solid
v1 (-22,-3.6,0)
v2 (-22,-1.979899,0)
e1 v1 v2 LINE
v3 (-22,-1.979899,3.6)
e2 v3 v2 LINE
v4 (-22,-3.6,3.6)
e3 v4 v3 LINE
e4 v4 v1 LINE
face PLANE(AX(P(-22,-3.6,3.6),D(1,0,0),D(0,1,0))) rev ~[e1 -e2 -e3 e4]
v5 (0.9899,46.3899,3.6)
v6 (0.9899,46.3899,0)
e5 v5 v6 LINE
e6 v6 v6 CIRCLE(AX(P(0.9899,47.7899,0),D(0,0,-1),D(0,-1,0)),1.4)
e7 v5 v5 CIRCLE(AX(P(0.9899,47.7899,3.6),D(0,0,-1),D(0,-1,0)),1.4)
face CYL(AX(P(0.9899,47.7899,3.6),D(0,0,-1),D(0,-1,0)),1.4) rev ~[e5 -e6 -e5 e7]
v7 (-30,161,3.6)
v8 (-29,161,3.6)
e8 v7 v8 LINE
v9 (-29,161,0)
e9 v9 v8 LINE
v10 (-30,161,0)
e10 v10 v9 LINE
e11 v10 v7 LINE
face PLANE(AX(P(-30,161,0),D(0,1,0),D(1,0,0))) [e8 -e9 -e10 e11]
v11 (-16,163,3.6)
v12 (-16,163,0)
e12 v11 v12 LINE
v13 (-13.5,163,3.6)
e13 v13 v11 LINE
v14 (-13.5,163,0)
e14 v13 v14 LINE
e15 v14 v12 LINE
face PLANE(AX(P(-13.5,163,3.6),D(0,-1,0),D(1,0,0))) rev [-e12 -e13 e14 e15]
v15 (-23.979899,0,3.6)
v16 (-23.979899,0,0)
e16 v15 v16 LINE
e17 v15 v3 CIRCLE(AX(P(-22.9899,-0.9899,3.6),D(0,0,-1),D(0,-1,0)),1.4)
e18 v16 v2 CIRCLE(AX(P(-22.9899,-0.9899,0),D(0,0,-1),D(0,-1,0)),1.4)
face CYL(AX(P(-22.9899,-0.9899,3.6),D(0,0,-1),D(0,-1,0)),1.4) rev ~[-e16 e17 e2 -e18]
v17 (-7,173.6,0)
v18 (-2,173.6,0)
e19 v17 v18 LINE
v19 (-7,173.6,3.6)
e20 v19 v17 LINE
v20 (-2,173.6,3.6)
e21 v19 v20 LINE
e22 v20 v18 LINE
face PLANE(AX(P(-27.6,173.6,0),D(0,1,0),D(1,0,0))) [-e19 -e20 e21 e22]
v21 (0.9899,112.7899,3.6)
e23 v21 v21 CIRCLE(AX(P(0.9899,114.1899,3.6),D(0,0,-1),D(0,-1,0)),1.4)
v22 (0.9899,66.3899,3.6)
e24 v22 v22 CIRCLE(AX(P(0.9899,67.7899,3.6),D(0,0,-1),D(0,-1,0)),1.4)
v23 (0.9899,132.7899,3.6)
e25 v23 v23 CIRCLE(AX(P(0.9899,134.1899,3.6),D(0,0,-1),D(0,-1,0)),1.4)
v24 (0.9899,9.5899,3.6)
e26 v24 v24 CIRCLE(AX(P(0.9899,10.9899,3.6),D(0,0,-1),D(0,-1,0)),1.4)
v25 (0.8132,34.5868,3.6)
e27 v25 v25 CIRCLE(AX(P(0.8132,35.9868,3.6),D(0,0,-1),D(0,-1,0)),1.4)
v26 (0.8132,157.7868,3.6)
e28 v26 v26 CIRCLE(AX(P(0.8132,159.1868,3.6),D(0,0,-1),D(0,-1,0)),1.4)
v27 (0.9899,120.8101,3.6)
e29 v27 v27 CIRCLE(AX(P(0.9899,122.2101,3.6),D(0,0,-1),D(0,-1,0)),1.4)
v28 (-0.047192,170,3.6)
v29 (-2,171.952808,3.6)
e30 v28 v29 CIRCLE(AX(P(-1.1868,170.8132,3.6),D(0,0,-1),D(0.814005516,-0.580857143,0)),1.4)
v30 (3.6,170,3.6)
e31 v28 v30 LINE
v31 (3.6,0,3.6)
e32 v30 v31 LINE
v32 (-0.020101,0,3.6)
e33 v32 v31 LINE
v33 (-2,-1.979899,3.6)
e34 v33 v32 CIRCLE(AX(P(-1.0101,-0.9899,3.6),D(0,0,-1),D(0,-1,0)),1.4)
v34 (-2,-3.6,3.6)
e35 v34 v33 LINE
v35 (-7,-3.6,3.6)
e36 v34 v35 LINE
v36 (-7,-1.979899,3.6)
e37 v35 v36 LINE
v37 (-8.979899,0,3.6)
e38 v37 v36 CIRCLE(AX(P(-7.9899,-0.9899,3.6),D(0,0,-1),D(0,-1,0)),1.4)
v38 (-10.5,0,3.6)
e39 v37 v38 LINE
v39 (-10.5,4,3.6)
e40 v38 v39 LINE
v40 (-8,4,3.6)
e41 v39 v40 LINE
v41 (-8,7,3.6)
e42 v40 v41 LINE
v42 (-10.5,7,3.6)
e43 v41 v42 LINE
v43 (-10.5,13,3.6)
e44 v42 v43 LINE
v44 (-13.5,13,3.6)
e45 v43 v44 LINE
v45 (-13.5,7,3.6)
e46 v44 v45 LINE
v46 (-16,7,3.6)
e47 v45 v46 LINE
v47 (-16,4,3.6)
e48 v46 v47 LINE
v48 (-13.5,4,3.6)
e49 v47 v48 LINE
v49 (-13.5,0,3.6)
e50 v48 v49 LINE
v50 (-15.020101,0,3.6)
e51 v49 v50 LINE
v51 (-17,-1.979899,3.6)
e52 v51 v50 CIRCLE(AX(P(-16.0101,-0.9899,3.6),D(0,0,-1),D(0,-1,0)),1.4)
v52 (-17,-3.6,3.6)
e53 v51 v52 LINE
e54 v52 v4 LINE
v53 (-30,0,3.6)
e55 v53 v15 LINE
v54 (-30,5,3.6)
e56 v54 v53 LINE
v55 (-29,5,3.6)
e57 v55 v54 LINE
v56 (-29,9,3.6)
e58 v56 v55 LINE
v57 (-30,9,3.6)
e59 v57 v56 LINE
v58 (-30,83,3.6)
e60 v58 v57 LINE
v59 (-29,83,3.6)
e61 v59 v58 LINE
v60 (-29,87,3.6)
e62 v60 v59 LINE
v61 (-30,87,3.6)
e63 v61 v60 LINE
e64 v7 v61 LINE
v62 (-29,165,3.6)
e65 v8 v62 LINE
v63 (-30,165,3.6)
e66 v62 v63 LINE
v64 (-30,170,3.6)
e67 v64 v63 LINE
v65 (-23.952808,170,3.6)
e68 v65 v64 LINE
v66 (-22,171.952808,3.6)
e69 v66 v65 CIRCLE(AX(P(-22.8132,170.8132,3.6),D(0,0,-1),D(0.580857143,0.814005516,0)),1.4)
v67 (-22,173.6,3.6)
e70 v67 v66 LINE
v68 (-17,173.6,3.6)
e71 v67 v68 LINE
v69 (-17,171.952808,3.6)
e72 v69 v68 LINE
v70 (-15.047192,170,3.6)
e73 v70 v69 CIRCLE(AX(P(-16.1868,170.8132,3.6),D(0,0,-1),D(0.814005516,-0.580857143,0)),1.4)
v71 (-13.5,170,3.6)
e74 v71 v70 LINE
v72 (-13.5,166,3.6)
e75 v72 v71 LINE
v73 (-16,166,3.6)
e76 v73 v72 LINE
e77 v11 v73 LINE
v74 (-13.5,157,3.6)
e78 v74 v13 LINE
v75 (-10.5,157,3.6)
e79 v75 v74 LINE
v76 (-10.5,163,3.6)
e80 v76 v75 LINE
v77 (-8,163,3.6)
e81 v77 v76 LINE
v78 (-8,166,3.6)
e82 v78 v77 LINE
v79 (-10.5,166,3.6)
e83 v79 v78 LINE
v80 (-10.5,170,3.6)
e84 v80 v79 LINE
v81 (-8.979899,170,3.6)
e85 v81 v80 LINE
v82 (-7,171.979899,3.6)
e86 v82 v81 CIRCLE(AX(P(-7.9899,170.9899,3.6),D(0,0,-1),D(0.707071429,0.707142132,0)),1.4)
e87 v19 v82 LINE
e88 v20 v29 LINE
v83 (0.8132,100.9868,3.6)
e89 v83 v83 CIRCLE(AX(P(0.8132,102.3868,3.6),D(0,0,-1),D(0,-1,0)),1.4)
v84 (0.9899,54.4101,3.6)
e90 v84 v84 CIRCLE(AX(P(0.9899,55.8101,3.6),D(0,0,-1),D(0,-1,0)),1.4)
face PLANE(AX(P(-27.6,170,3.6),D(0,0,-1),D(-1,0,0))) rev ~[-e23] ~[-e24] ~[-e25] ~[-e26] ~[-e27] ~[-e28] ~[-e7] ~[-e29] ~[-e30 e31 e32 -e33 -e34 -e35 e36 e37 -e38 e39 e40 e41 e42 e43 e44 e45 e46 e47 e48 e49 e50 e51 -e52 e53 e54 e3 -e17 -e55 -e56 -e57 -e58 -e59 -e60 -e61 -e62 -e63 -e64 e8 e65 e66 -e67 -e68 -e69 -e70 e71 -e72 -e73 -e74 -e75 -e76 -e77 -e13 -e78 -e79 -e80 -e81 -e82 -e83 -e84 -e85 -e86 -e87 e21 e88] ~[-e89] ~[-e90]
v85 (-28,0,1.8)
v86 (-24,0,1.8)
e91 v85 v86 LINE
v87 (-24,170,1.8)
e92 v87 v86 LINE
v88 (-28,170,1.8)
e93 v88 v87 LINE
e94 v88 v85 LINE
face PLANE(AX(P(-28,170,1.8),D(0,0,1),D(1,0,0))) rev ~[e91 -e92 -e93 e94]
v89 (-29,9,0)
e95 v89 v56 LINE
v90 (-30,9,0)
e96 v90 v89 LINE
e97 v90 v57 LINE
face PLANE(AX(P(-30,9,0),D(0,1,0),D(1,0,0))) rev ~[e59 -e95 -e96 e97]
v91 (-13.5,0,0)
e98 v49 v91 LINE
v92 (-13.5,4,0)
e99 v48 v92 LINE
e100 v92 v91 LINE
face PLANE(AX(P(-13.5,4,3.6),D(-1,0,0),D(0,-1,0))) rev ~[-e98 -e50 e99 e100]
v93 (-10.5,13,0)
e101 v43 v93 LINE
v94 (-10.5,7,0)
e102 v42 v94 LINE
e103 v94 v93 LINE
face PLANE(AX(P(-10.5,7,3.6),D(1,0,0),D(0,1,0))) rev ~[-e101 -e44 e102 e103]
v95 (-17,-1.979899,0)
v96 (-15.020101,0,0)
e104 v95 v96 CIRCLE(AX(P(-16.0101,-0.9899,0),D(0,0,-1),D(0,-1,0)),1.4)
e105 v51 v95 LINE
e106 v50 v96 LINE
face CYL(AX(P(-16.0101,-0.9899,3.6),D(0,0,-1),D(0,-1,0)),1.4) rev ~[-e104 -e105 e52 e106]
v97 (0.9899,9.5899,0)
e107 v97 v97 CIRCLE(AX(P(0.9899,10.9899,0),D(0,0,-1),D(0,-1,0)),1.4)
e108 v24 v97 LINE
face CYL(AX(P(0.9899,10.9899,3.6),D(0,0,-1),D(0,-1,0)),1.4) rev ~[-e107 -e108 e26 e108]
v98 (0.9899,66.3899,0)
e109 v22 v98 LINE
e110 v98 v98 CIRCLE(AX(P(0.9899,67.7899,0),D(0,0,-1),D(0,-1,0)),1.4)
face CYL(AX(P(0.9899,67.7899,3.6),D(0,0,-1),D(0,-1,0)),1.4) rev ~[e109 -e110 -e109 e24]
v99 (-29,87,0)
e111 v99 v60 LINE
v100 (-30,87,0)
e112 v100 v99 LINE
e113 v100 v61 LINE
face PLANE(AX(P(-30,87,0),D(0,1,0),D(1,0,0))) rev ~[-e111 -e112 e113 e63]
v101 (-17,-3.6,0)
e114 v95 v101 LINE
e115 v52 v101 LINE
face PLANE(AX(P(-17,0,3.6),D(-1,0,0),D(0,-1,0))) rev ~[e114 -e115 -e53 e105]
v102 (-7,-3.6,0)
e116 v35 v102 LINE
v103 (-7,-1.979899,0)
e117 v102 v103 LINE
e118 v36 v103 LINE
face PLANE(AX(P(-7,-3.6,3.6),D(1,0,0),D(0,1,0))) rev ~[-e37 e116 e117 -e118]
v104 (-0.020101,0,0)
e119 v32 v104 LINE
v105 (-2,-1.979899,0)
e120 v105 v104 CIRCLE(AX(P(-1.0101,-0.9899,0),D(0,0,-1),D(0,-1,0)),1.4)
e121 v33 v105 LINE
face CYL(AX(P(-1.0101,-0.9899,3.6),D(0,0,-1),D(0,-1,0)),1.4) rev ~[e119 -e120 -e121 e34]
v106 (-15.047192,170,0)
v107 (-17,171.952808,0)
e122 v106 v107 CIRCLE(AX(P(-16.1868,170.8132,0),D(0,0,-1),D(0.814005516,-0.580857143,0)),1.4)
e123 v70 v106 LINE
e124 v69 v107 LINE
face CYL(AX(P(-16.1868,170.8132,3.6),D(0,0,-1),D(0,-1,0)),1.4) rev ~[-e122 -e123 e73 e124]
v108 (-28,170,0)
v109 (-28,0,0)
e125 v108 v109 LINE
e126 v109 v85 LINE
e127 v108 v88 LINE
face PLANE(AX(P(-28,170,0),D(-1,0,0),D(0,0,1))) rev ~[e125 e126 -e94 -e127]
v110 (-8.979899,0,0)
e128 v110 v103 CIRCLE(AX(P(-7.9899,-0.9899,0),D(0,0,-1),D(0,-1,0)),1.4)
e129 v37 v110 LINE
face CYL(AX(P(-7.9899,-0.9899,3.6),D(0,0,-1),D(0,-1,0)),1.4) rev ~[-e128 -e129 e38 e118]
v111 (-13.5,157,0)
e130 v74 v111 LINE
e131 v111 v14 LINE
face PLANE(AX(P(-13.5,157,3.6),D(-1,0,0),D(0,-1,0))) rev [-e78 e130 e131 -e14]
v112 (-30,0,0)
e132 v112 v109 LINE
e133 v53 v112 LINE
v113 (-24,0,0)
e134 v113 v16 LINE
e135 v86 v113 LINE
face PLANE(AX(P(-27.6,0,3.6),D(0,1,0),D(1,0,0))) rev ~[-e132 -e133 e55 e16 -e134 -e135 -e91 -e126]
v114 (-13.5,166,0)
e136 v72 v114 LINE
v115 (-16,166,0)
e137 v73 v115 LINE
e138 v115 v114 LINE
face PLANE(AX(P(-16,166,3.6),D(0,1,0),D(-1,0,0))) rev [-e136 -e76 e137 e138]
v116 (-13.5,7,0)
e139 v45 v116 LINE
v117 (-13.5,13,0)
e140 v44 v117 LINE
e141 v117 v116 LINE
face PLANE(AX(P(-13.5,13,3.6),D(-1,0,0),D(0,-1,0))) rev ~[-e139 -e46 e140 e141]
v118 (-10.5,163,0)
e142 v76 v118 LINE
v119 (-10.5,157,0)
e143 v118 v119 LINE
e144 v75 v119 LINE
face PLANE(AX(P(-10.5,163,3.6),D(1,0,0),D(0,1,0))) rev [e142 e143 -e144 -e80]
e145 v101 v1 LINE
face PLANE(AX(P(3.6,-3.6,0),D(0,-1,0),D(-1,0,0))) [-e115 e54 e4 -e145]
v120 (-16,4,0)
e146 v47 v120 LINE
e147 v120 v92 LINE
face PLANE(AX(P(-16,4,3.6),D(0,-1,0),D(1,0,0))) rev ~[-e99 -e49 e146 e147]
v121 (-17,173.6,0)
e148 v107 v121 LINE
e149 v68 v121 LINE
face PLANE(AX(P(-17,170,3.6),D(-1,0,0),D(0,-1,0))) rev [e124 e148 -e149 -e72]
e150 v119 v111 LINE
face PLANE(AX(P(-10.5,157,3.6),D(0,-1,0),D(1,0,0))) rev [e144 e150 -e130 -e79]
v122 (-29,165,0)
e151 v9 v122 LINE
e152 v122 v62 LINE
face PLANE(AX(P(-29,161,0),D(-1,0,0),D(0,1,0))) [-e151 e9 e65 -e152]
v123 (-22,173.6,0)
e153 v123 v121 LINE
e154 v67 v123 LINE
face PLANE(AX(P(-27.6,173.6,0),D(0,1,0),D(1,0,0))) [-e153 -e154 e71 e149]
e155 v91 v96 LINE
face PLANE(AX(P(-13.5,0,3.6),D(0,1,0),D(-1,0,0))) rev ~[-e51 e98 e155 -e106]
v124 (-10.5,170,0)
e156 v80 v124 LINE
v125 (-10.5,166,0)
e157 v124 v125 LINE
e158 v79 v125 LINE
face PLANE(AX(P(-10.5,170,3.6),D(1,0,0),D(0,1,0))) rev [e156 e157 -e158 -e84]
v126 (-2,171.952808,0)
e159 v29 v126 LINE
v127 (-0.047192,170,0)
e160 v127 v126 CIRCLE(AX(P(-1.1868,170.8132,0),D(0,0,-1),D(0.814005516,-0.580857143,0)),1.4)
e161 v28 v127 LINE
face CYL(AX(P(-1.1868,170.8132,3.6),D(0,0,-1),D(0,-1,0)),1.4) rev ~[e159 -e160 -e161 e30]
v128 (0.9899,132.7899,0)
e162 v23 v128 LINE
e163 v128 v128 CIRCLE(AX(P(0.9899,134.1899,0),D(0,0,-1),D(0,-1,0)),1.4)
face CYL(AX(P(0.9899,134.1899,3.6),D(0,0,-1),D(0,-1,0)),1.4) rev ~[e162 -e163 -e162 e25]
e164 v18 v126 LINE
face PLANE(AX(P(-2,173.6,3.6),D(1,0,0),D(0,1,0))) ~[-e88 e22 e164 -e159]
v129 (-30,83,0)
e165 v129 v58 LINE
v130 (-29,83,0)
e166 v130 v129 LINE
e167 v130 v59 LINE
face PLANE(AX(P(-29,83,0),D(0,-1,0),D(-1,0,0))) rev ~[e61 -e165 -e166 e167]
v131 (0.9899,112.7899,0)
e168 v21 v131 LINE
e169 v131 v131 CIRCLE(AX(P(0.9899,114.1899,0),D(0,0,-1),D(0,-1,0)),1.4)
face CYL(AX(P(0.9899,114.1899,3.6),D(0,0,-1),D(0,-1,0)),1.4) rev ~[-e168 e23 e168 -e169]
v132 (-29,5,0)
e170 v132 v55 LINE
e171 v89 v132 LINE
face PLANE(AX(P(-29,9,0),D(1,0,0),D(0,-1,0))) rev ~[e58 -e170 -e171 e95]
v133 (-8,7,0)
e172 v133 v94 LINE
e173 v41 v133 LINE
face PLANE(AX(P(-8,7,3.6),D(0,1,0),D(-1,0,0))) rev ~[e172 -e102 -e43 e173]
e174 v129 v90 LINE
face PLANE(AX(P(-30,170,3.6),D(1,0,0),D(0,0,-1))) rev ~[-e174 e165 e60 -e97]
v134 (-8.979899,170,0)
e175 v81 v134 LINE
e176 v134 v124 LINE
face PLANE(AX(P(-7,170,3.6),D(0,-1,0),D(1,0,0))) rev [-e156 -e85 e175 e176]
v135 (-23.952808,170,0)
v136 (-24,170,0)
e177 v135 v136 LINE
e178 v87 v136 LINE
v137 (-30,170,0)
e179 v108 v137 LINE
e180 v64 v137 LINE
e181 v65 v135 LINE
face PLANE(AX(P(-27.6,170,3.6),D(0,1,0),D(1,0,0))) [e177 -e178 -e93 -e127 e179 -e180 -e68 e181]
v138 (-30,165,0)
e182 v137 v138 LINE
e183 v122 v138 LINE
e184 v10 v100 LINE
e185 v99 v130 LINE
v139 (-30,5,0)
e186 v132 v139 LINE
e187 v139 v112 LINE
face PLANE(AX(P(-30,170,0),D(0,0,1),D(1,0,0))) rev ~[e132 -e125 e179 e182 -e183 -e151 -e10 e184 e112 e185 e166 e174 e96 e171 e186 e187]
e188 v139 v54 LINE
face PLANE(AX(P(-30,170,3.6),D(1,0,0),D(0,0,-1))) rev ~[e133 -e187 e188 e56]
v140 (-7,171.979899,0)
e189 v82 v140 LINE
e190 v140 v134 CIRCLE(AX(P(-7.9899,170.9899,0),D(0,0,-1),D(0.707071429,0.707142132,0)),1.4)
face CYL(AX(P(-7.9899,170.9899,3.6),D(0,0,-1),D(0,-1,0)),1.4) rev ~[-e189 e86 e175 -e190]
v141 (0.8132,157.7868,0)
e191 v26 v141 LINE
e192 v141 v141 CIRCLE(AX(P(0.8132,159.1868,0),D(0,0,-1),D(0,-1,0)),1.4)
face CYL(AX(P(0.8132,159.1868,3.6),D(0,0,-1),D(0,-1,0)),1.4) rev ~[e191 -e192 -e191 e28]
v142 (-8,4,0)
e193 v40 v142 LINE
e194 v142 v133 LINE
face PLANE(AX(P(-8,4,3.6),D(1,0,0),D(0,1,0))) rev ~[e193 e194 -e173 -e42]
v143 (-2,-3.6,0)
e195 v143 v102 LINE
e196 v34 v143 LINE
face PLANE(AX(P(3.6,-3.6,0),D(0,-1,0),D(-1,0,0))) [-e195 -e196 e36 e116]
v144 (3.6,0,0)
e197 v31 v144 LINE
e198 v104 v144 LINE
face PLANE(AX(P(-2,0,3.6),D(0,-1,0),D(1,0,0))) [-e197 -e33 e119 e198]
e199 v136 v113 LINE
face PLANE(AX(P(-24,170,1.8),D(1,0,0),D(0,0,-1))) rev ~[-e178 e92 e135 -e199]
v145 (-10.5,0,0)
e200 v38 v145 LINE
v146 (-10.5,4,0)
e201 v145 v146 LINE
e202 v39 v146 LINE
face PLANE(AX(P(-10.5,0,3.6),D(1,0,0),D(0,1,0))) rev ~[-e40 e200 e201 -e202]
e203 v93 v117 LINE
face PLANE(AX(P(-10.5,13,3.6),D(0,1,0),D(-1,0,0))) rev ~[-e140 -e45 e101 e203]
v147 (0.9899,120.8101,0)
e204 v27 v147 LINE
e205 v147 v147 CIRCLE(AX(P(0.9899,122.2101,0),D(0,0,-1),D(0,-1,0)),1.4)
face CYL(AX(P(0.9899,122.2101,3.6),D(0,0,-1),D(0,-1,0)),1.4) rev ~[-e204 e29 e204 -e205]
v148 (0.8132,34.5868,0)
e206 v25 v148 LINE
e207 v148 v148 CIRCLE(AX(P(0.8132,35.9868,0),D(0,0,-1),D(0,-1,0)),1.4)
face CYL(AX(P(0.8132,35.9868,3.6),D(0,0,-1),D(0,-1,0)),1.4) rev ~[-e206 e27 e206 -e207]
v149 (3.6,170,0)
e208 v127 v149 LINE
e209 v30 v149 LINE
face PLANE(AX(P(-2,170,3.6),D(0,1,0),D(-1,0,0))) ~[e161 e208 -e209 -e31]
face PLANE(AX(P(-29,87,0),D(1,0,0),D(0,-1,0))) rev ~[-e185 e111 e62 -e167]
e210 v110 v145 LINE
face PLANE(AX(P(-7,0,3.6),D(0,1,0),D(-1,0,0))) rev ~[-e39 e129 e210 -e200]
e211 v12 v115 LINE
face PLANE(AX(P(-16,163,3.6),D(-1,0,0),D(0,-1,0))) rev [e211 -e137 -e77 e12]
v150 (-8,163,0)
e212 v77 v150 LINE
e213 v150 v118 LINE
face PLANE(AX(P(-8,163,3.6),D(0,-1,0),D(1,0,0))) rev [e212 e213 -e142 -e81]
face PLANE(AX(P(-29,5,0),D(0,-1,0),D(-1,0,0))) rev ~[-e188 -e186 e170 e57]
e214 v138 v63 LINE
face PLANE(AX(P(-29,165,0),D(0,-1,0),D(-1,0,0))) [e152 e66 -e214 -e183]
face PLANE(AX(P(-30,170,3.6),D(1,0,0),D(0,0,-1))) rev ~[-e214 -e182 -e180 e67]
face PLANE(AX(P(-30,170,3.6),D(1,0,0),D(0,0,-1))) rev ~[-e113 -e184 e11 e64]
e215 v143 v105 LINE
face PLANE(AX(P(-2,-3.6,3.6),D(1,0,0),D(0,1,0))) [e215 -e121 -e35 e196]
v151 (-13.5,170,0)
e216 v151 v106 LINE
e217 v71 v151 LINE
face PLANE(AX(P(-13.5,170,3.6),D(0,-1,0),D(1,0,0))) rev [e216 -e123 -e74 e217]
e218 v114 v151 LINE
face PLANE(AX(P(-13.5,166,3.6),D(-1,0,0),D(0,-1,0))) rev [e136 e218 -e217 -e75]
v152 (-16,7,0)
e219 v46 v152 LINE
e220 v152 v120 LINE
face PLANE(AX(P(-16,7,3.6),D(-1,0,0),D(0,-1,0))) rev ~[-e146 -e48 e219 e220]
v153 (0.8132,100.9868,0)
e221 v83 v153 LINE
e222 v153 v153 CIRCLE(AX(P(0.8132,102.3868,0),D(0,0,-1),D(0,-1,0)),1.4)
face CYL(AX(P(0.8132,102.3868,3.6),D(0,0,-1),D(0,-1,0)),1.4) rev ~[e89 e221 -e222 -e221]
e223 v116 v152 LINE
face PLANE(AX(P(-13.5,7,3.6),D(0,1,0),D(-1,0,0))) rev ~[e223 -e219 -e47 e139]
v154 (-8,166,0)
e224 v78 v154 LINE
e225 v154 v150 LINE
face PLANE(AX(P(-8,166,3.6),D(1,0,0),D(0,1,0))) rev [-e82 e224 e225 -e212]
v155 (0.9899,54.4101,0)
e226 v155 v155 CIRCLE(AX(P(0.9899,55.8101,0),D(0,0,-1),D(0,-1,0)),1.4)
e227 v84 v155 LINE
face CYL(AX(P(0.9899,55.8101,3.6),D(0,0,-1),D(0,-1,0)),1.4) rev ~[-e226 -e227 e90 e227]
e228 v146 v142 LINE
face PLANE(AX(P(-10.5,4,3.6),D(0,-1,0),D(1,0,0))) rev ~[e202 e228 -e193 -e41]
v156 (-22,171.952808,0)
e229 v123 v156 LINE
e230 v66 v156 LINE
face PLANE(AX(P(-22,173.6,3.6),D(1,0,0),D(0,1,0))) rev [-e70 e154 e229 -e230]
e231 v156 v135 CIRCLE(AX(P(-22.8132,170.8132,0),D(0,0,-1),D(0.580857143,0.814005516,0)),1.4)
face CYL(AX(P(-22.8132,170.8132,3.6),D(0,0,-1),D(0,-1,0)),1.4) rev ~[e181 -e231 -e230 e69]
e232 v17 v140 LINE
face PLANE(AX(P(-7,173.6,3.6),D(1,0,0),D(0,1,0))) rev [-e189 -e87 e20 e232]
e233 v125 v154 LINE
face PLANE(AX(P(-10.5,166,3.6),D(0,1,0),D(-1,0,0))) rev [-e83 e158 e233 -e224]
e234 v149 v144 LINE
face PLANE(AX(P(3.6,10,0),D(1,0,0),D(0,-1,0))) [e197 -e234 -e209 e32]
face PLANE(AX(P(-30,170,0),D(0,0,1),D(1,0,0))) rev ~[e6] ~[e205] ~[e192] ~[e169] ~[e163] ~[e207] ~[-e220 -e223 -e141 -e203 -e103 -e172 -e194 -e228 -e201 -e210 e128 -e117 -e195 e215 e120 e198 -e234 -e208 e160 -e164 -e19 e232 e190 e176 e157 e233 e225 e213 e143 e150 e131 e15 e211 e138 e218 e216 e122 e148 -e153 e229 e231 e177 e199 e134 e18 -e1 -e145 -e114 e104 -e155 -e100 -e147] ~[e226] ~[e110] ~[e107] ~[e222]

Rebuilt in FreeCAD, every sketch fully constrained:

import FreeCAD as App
import Part
import Sketcher

V = App.Vector

doc = App.newDocument("Part")
body = doc.addObject("PartDesign::Body", "Body")

# Sketch on XY plane
sketch1 = body.newObject("Sketcher::SketchObject", "Sketch")
sketch1.AttachmentSupport = (doc.getObject("XY_Plane"), [""])
sketch1.MapMode = "FlatFace"
sketch1.addGeometry(Part.LineSegment(V(4, 174, 0), V(-28, 174, 0)), False)
sketch1.addGeometry(Part.LineSegment(V(-28, 174, 0), V(-28, -4, 0)), False)
sketch1.addGeometry(Part.LineSegment(V(-28, -4, 0), V(4, -4, 0)), False)
sketch1.addGeometry(Part.LineSegment(V(4, -4, 0), V(4, 174, 0)), False)
sketch1.addConstraint(Sketcher.Constraint("Coincident", 0, 2, 1, 1))
sketch1.addConstraint(Sketcher.Constraint("Coincident", 1, 2, 2, 1))
sketch1.addConstraint(Sketcher.Constraint("Coincident", 2, 2, 3, 1))
sketch1.addConstraint(Sketcher.Constraint("Coincident", 3, 2, 0, 1))
sketch1.addConstraint(Sketcher.Constraint("Horizontal", 0))
sketch1.addConstraint(Sketcher.Constraint("Vertical", 1))
sketch1.addConstraint(Sketcher.Constraint("Horizontal", 2))
sketch1.addConstraint(Sketcher.Constraint("Vertical", 3))
sketch1.addConstraint(Sketcher.Constraint("DistanceY", 1, 2, -1, 1, 3.6))
sketch1.addConstraint(Sketcher.Constraint("DistanceX", -1, 1, 2, 2, 3.6))
sketch1.addConstraint(Sketcher.Constraint("DistanceX", 0, 2, 0, 1, 31.2))
sketch1.addConstraint(Sketcher.Constraint("DistanceY", 1, 2, 1, 1, 177.2))
pad1 = body.newObject("PartDesign::Pad", "Pad")
pad1.Profile = sketch1
pad1.Length = 3.6

# Sketch on XY plane
sketch2 = body.newObject("Sketcher::SketchObject", "Sketch001")
sketch2.AttachmentSupport = (doc.getObject("XY_Plane"), [""])
sketch2.MapMode = "FlatFace"
sketch2.AttachmentOffset = App.Placement(V(0, 0, 3.6), App.Rotation())
sketch2.addGeometry(Part.LineSegment(V(-2, -3.6, 0), V(3.6, -3.6, 0)), False)
sketch2.addGeometry(Part.LineSegment(V(3.6, -3.6, 0), V(3.6, 0, 0)), False)
sketch2.addGeometry(Part.LineSegment(V(3.6, 0, 0), V(-2, 0, 0)), False)
sketch2.addGeometry(Part.LineSegment(V(-2, 0, 0), V(-2, -3.6, 0)), False)
sketch2.addGeometry(Part.LineSegment(V(-7, -3.6, 0), V(-7, 0, 0)), False)
sketch2.addGeometry(Part.LineSegment(V(-7, 0, 0), V(-10.5, 0, 0)), False)
sketch2.addGeometry(Part.LineSegment(V(-10.5, 0, 0), V(-10.5, 4, 0)), False)
sketch2.addGeometry(Part.LineSegment(V(-10.5, 4, 0), V(-8, 4, 0)), False)
sketch2.addGeometry(Part.LineSegment(V(-8, 4, 0), V(-8, 7, 0)), False)
sketch2.addGeometry(Part.LineSegment(V(-8, 7, 0), V(-10.5, 7, 0)), False)
sketch2.addGeometry(Part.LineSegment(V(-10.5, 7, 0), V(-10.5, 13, 0)), False)
sketch2.addGeometry(Part.LineSegment(V(-10.5, 13, 0), V(-13.5, 13, 0)), False)
sketch2.addGeometry(Part.LineSegment(V(-13.5, 13, 0), V(-13.5, 7, 0)), False)
sketch2.addGeometry(Part.LineSegment(V(-13.5, 7, 0), V(-16, 7, 0)), False)
sketch2.addGeometry(Part.LineSegment(V(-16, 7, 0), V(-16, 4, 0)), False)
sketch2.addGeometry(Part.LineSegment(V(-16, 4, 0), V(-13.5, 4, 0)), False)
sketch2.addGeometry(Part.LineSegment(V(-13.5, 4, 0), V(-13.5, 0, 0)), False)
sketch2.addGeometry(Part.LineSegment(V(-13.5, 0, 0), V(-17, 0, 0)), False)
sketch2.addGeometry(Part.LineSegment(V(-17, 0, 0), V(-17, -3.6, 0)), False)
sketch2.addGeometry(Part.LineSegment(V(-17, -3.6, 0), V(-7, -3.6, 0)), False)
sketch2.addGeometry(Part.LineSegment(V(-22, 0, 0), V(-27.6, 0, 0)), False)
sketch2.addGeometry(Part.LineSegment(V(-27.6, 0, 0), V(-27.6, -3.6, 0)), False)
sketch2.addGeometry(Part.LineSegment(V(-27.6, -3.6, 0), V(-22, -3.6, 0)), False)
sketch2.addGeometry(Part.LineSegment(V(-22, -3.6, 0), V(-22, 0, 0)), False)
sketch2.addConstraint(Sketcher.Constraint("Coincident", 0, 2, 1, 1))
sketch2.addConstraint(Sketcher.Constraint("Coincident", 1, 2, 2, 1))
sketch2.addConstraint(Sketcher.Constraint("Coincident", 2, 2, 3, 1))
sketch2.addConstraint(Sketcher.Constraint("Coincident", 3, 2, 0, 1))
sketch2.addConstraint(Sketcher.Constraint("Coincident", 4, 2, 5, 1))
sketch2.addConstraint(Sketcher.Constraint("Coincident", 5, 2, 6, 1))
sketch2.addConstraint(Sketcher.Constraint("Coincident", 6, 2, 7, 1))
sketch2.addConstraint(Sketcher.Constraint("Coincident", 7, 2, 8, 1))
sketch2.addConstraint(Sketcher.Constraint("Coincident", 8, 2, 9, 1))
sketch2.addConstraint(Sketcher.Constraint("Coincident", 9, 2, 10, 1))
sketch2.addConstraint(Sketcher.Constraint("Coincident", 10, 2, 11, 1))
sketch2.addConstraint(Sketcher.Constraint("Coincident", 11, 2, 12, 1))
sketch2.addConstraint(Sketcher.Constraint("Coincident", 12, 2, 13, 1))
sketch2.addConstraint(Sketcher.Constraint("Coincident", 13, 2, 14, 1))
sketch2.addConstraint(Sketcher.Constraint("Coincident", 14, 2, 15, 1))
sketch2.addConstraint(Sketcher.Constraint("Coincident", 15, 2, 16, 1))
sketch2.addConstraint(Sketcher.Constraint("Coincident", 16, 2, 17, 1))
sketch2.addConstraint(Sketcher.Constraint("Coincident", 17, 2, 18, 1))
sketch2.addConstraint(Sketcher.Constraint("Coincident", 18, 2, 19, 1))
sketch2.addConstraint(Sketcher.Constraint("Coincident", 19, 2, 4, 1))
sketch2.addConstraint(Sketcher.Constraint("Coincident", 20, 2, 21, 1))
sketch2.addConstraint(Sketcher.Constraint("Coincident", 21, 2, 22, 1))
sketch2.addConstraint(Sketcher.Constraint("Coincident", 22, 2, 23, 1))
sketch2.addConstraint(Sketcher.Constraint("Coincident", 23, 2, 20, 1))
sketch2.addConstraint(Sketcher.Constraint("Horizontal", 0))
sketch2.addConstraint(Sketcher.Constraint("Vertical", 1))
sketch2.addConstraint(Sketcher.Constraint("Horizontal", 2))
sketch2.addConstraint(Sketcher.Constraint("Vertical", 3))
sketch2.addConstraint(Sketcher.Constraint("Vertical", 4))
sketch2.addConstraint(Sketcher.Constraint("Horizontal", 5))
sketch2.addConstraint(Sketcher.Constraint("Vertical", 6))
sketch2.addConstraint(Sketcher.Constraint("Horizontal", 7))
sketch2.addConstraint(Sketcher.Constraint("Vertical", 8))
sketch2.addConstraint(Sketcher.Constraint("Horizontal", 9))
sketch2.addConstraint(Sketcher.Constraint("Vertical", 10))
sketch2.addConstraint(Sketcher.Constraint("Horizontal", 11))
sketch2.addConstraint(Sketcher.Constraint("Vertical", 12))
sketch2.addConstraint(Sketcher.Constraint("Horizontal", 13))
sketch2.addConstraint(Sketcher.Constraint("Vertical", 14))
sketch2.addConstraint(Sketcher.Constraint("Horizontal", 15))
sketch2.addConstraint(Sketcher.Constraint("Vertical", 16))
sketch2.addConstraint(Sketcher.Constraint("Horizontal", 17))
sketch2.addConstraint(Sketcher.Constraint("Vertical", 18))
sketch2.addConstraint(Sketcher.Constraint("Horizontal", 19))
sketch2.addConstraint(Sketcher.Constraint("Horizontal", 20))
sketch2.addConstraint(Sketcher.Constraint("Vertical", 21))
sketch2.addConstraint(Sketcher.Constraint("Horizontal", 22))
sketch2.addConstraint(Sketcher.Constraint("Vertical", 23))
sketch2.addConstraint(Sketcher.Constraint("PointOnObject", 1, 2, -1))
sketch2.addConstraint(Sketcher.Constraint("PointOnObject", 4, 2, -1))
sketch2.addConstraint(Sketcher.Constraint("PointOnObject", 16, 2, -1))
sketch2.addConstraint(Sketcher.Constraint("PointOnObject", 20, 2, -1))
sketch2.addConstraint(Sketcher.Constraint("Horizontal", 9, 2, 12, 2))
sketch2.addConstraint(Sketcher.Constraint("Horizontal", 7, 2, 14, 2))
sketch2.addConstraint(Sketcher.Constraint("Horizontal", 3, 2, 18, 2))
sketch2.addConstraint(Sketcher.Constraint("Horizontal", 19, 2, 21, 2))
sketch2.addConstraint(Sketcher.Constraint("Vertical", 6, 2, 9, 2))
sketch2.addConstraint(Sketcher.Constraint("Vertical", 12, 2, 15, 2))
sketch2.addConstraint(Sketcher.Constraint("Equal", 9, 13))
sketch2.addConstraint(Sketcher.Constraint("Equal", 5, 17))
sketch2.addConstraint(Sketcher.Constraint("Equal", 2, 20))
sketch2.addConstraint(Sketcher.Constraint("Equal", 11, 8))
sketch2.addConstraint(Sketcher.Constraint("DistanceX", 11, 2, 11, 1, 3.0))
sketch2.addConstraint(Sketcher.Constraint("DistanceX", 19, 1, 19, 2, 10.0))
sketch2.addConstraint(Sketcher.Constraint("DistanceY", 6, 1, 6, 2, 4.0))
sketch2.addConstraint(Sketcher.Constraint("DistanceY", 1, 1, 1, 2, 3.6))
sketch2.addConstraint(Sketcher.Constraint("DistanceX", 7, 2, -1, 1, 8.0))
sketch2.addConstraint(Sketcher.Constraint("DistanceX", 4, 2, 2, 2, 5.0))
sketch2.addConstraint(Sketcher.Constraint("DistanceX", 13, 2, 8, 2, 8.0))
sketch2.addConstraint(Sketcher.Constraint("DistanceX", 22, 2, 18, 2, 5.0))
sketch2.addConstraint(Sketcher.Constraint("DistanceX", -1, 1, 0, 2, 3.6))
sketch2.addConstraint(Sketcher.Constraint("DistanceY", 10, 1, 10, 2, 6.0))
pocket1 = body.newObject("PartDesign::Pocket", "Pocket")
pocket1.Profile = sketch2
pocket1.Length = 3.6
doc.recompute()

datumplane = body.newObject("PartDesign::Plane", "DatumPlane")
datumplane.AttachmentSupport = (doc.getObject("XZ_Plane"), [""])
datumplane.MapMode = "FlatFace"
datumplane.AttachmentOffset = App.Placement(V(0, 0, -85), App.Rotation())
mirrored = body.newObject("PartDesign::Mirrored", "Mirrored")
mirrored.Originals = [pocket1]
mirrored.MirrorPlane = (datumplane, [""])
body.Tip = mirrored

# Sketch on XZ plane
sketch3 = body.newObject("Sketcher::SketchObject", "Sketch002")
sketch3.AttachmentSupport = (doc.getObject("XZ_Plane"), [""])
sketch3.MapMode = "FlatFace"
sketch3.AttachmentOffset = App.Placement(V(0, 0, -170), App.Rotation())
sketch3.addGeometry(Part.LineSegment(V(-27.6, 3.6, 0), V(-27.6, 0, 0)), False)
sketch3.addGeometry(Part.LineSegment(V(-27.6, 0, 0), V(-30, 0, 0)), False)
sketch3.addGeometry(Part.LineSegment(V(-30, 0, 0), V(-30, 3.6, 0)), False)
sketch3.addGeometry(Part.LineSegment(V(-30, 3.6, 0), V(-27.6, 3.6, 0)), False)
sketch3.addConstraint(Sketcher.Constraint("Coincident", 0, 2, 1, 1))
sketch3.addConstraint(Sketcher.Constraint("Coincident", 1, 2, 2, 1))
sketch3.addConstraint(Sketcher.Constraint("Coincident", 2, 2, 3, 1))
sketch3.addConstraint(Sketcher.Constraint("Coincident", 3, 2, 0, 1))
sketch3.addConstraint(Sketcher.Constraint("Vertical", 0))
sketch3.addConstraint(Sketcher.Constraint("Horizontal", 1))
sketch3.addConstraint(Sketcher.Constraint("Vertical", 2))
sketch3.addConstraint(Sketcher.Constraint("Horizontal", 3))
sketch3.addConstraint(Sketcher.Constraint("PointOnObject", 0, 2, -1))
sketch3.addConstraint(Sketcher.Constraint("DistanceX", 1, 2, 1, 1, 2.4))
sketch3.addConstraint(Sketcher.Constraint("DistanceY", 0, 2, 0, 1, 3.6))
sketch3.addConstraint(Sketcher.Constraint("DistanceX", 1, 2, -1, 1, 30.0))
pad2 = body.newObject("PartDesign::Pad", "Pad001")
pad2.Profile = sketch3
pad2.Length = 170

# Sketch on XZ plane
sketch4 = body.newObject("Sketcher::SketchObject", "Sketch003")
sketch4.AttachmentSupport = (doc.getObject("XZ_Plane"), [""])
sketch4.MapMode = "FlatFace"
sketch4.AttachmentOffset = App.Placement(V(0, 0, -170), App.Rotation())
sketch4.addGeometry(Part.LineSegment(V(-24, 0, 0), V(-28, 0, 0)), False)
sketch4.addGeometry(Part.LineSegment(V(-28, 0, 0), V(-28, 1.8, 0)), False)
sketch4.addGeometry(Part.LineSegment(V(-28, 1.8, 0), V(-24, 1.8, 0)), False)
sketch4.addGeometry(Part.LineSegment(V(-24, 1.8, 0), V(-24, 0, 0)), False)
sketch4.addConstraint(Sketcher.Constraint("Coincident", 0, 2, 1, 1))
sketch4.addConstraint(Sketcher.Constraint("Coincident", 1, 2, 2, 1))
sketch4.addConstraint(Sketcher.Constraint("Coincident", 2, 2, 3, 1))
sketch4.addConstraint(Sketcher.Constraint("Coincident", 3, 2, 0, 1))
sketch4.addConstraint(Sketcher.Constraint("Horizontal", 0))
sketch4.addConstraint(Sketcher.Constraint("Vertical", 1))
sketch4.addConstraint(Sketcher.Constraint("Horizontal", 2))
sketch4.addConstraint(Sketcher.Constraint("Vertical", 3))
sketch4.addConstraint(Sketcher.Constraint("PointOnObject", 0, 2, -1))
sketch4.addConstraint(Sketcher.Constraint("DistanceX", 0, 2, 0, 1, 4.0))
sketch4.addConstraint(Sketcher.Constraint("DistanceY", 1, 1, 1, 2, 1.8))
sketch4.addConstraint(Sketcher.Constraint("DistanceX", 0, 2, -1, 1, 28.0))
pocket2 = body.newObject("PartDesign::Pocket", "Pocket001")
pocket2.Profile = sketch4
pocket2.Type = "ThroughAll"
pocket2.Reversed = True

# Sketch on XY plane
sketch5 = body.newObject("Sketcher::SketchObject", "Sketch004")
sketch5.AttachmentSupport = (doc.getObject("XY_Plane"), [""])
sketch5.MapMode = "FlatFace"
sketch5.addGeometry(Part.LineSegment(V(-30, 161, 0), V(-30, 165, 0)), False)
sketch5.addGeometry(Part.LineSegment(V(-30, 165, 0), V(-29, 165, 0)), False)
sketch5.addGeometry(Part.LineSegment(V(-29, 165, 0), V(-29, 161, 0)), False)
sketch5.addGeometry(Part.LineSegment(V(-29, 161, 0), V(-30, 161, 0)), False)
sketch5.addGeometry(Part.LineSegment(V(-29, 5, 0), V(-30, 5, 0)), False)
sketch5.addGeometry(Part.LineSegment(V(-30, 5, 0), V(-30, 9, 0)), False)
sketch5.addGeometry(Part.LineSegment(V(-30, 9, 0), V(-29, 9, 0)), False)
sketch5.addGeometry(Part.LineSegment(V(-29, 9, 0), V(-29, 5, 0)), False)
sketch5.addGeometry(Part.LineSegment(V(-30, 83, 0), V(-30, 87, 0)), False)
sketch5.addGeometry(Part.LineSegment(V(-30, 87, 0), V(-29, 87, 0)), False)
sketch5.addGeometry(Part.LineSegment(V(-29, 87, 0), V(-29, 83, 0)), False)
sketch5.addGeometry(Part.LineSegment(V(-29, 83, 0), V(-30, 83, 0)), False)
sketch5.addConstraint(Sketcher.Constraint("Coincident", 0, 2, 1, 1))
sketch5.addConstraint(Sketcher.Constraint("Coincident", 1, 2, 2, 1))
sketch5.addConstraint(Sketcher.Constraint("Coincident", 2, 2, 3, 1))
sketch5.addConstraint(Sketcher.Constraint("Coincident", 3, 2, 0, 1))
sketch5.addConstraint(Sketcher.Constraint("Coincident", 4, 2, 5, 1))
sketch5.addConstraint(Sketcher.Constraint("Coincident", 5, 2, 6, 1))
sketch5.addConstraint(Sketcher.Constraint("Coincident", 6, 2, 7, 1))
sketch5.addConstraint(Sketcher.Constraint("Coincident", 7, 2, 4, 1))
sketch5.addConstraint(Sketcher.Constraint("Coincident", 8, 2, 9, 1))
sketch5.addConstraint(Sketcher.Constraint("Coincident", 9, 2, 10, 1))
sketch5.addConstraint(Sketcher.Constraint("Coincident", 10, 2, 11, 1))
sketch5.addConstraint(Sketcher.Constraint("Coincident", 11, 2, 8, 1))
sketch5.addConstraint(Sketcher.Constraint("Vertical", 0))
sketch5.addConstraint(Sketcher.Constraint("Horizontal", 1))
sketch5.addConstraint(Sketcher.Constraint("Vertical", 2))
sketch5.addConstraint(Sketcher.Constraint("Horizontal", 3))
sketch5.addConstraint(Sketcher.Constraint("Horizontal", 4))
sketch5.addConstraint(Sketcher.Constraint("Vertical", 5))
sketch5.addConstraint(Sketcher.Constraint("Horizontal", 6))
sketch5.addConstraint(Sketcher.Constraint("Vertical", 7))
sketch5.addConstraint(Sketcher.Constraint("Vertical", 8))
sketch5.addConstraint(Sketcher.Constraint("Horizontal", 9))
sketch5.addConstraint(Sketcher.Constraint("Vertical", 10))
sketch5.addConstraint(Sketcher.Constraint("Horizontal", 11))
sketch5.addConstraint(Sketcher.Constraint("Vertical", 3, 2, 4, 2))
sketch5.addConstraint(Sketcher.Constraint("Vertical", 2, 2, 6, 2))
sketch5.addConstraint(Sketcher.Constraint("Vertical", 5, 2, 8, 2))
sketch5.addConstraint(Sketcher.Constraint("Vertical", 7, 2, 9, 2))
sketch5.addConstraint(Sketcher.Constraint("Equal", 2, 5))
sketch5.addConstraint(Sketcher.Constraint("Equal", 7, 8))
sketch5.addConstraint(Sketcher.Constraint("DistanceY", 0, 1, 0, 2, 4.0))
sketch5.addConstraint(Sketcher.Constraint("DistanceY", -1, 1, 4, 2, 5.0))
sketch5.addConstraint(Sketcher.Constraint("DistanceX", 1, 1, 1, 2, 1.0))
sketch5.addConstraint(Sketcher.Constraint("DistanceX", 0, 2, -1, 1, 30.0))
sketch5.addConstraint(Sketcher.Constraint("DistanceY", -1, 1, 0, 2, 165.0))
sketch5.addConstraint(Sketcher.Constraint("DistanceY", -1, 1, 8, 2, 87.0))
pocket3 = body.newObject("PartDesign::Pocket", "Pocket002")
pocket3.Profile = sketch5
pocket3.Type = "ThroughAll"
pocket3.Reversed = True

# Sketch on XY plane
sketch6 = body.newObject("Sketcher::SketchObject", "Sketch005")
sketch6.AttachmentSupport = (doc.getObject("XY_Plane"), [""])
sketch6.MapMode = "FlatFace"
sketch6.AttachmentOffset = App.Placement(V(0, 0, 3.6), App.Rotation())
sketch6.addGeometry(Part.Circle(V(-28.3, -9.2, 0), V(0, 0, 1), 1.4), False)
sketch6.addGeometry(Part.Circle(V(-22.8, 170.8, 0), V(0, 0, 1), 1.4), False)
sketch6.addGeometry(Part.Circle(V(-16.2, 170.8, 0), V(0, 0, 1), 1.4), False)
sketch6.addGeometry(Part.Circle(V(-8, 171, 0), V(0, 0, 1), 1.4), False)
sketch6.addGeometry(Part.Circle(V(-1.2, 170.8, 0), V(0, 0, 1), 1.4), False)
sketch6.addGeometry(Part.Circle(V(0.8, 159.2, 0), V(0, 0, 1), 1.4), False)
sketch6.addGeometry(Part.Circle(V(1, 134.2, 0), V(0, 0, 1), 1.4), False)
sketch6.addGeometry(Part.Circle(V(1, 122.2, 0), V(0, 0, 1), 1.4), False)
sketch6.addGeometry(Part.Circle(V(1, 114.2, 0), V(0, 0, 1), 1.4), False)
sketch6.addGeometry(Part.Circle(V(0.8, 102.4, 0), V(0, 0, 1), 1.4), False)
sketch6.addGeometry(Part.Circle(V(1, 67.8, 0), V(0, 0, 1), 1.4), False)
sketch6.addGeometry(Part.Circle(V(1, 55.8, 0), V(0, 0, 1), 1.4), False)
sketch6.addGeometry(Part.Circle(V(1, 47.8, 0), V(0, 0, 1), 1.4), False)
sketch6.addGeometry(Part.Circle(V(0.8, 36, 0), V(0, 0, 1), 1.4), False)
sketch6.addGeometry(Part.Circle(V(1, 11, 0), V(0, 0, 1), 1.4), False)
sketch6.addGeometry(Part.Circle(V(-1, -1, 0), V(0, 0, 1), 1.4), False)
sketch6.addGeometry(Part.Circle(V(-8, -1, 0), V(0, 0, 1), 1.4), False)
sketch6.addGeometry(Part.Circle(V(-16, -1, 0), V(0, 0, 1), 1.4), False)
sketch6.addGeometry(Part.Circle(V(-23, -1, 0), V(0, 0, 1), 1.4), False)
sketch6.addConstraint(Sketcher.Constraint("Equal", 0, 1))
sketch6.addConstraint(Sketcher.Constraint("Equal", 1, 2))
sketch6.addConstraint(Sketcher.Constraint("Equal", 2, 3))
sketch6.addConstraint(Sketcher.Constraint("Equal", 3, 4))
sketch6.addConstraint(Sketcher.Constraint("Equal", 4, 5))
sketch6.addConstraint(Sketcher.Constraint("Equal", 5, 6))
sketch6.addConstraint(Sketcher.Constraint("Equal", 6, 7))
sketch6.addConstraint(Sketcher.Constraint("Equal", 7, 8))
sketch6.addConstraint(Sketcher.Constraint("Equal", 8, 9))
sketch6.addConstraint(Sketcher.Constraint("Equal", 9, 10))
sketch6.addConstraint(Sketcher.Constraint("Equal", 10, 11))
sketch6.addConstraint(Sketcher.Constraint("Equal", 11, 12))
sketch6.addConstraint(Sketcher.Constraint("Equal", 12, 13))
sketch6.addConstraint(Sketcher.Constraint("Equal", 13, 14))
sketch6.addConstraint(Sketcher.Constraint("Equal", 14, 15))
sketch6.addConstraint(Sketcher.Constraint("Equal", 15, 16))
sketch6.addConstraint(Sketcher.Constraint("Equal", 16, 17))
sketch6.addConstraint(Sketcher.Constraint("Equal", 17, 18))
sketch6.addConstraint(Sketcher.Constraint("Horizontal", 1, 3, 2, 3))
sketch6.addConstraint(Sketcher.Constraint("Horizontal", 2, 3, 4, 3))
sketch6.addConstraint(Sketcher.Constraint("Horizontal", 15, 3, 16, 3))
sketch6.addConstraint(Sketcher.Constraint("Horizontal", 16, 3, 17, 3))
sketch6.addConstraint(Sketcher.Constraint("Horizontal", 17, 3, 18, 3))
sketch6.addConstraint(Sketcher.Constraint("Vertical", 6, 3, 7, 3))
sketch6.addConstraint(Sketcher.Constraint("Vertical", 7, 3, 8, 3))
sketch6.addConstraint(Sketcher.Constraint("Vertical", 5, 3, 9, 3))
sketch6.addConstraint(Sketcher.Constraint("Vertical", 8, 3, 10, 3))
sketch6.addConstraint(Sketcher.Constraint("Vertical", 10, 3, 11, 3))
sketch6.addConstraint(Sketcher.Constraint("Vertical", 11, 3, 12, 3))
sketch6.addConstraint(Sketcher.Constraint("Vertical", 9, 3, 13, 3))
sketch6.addConstraint(Sketcher.Constraint("Vertical", 12, 3, 14, 3))
sketch6.addConstraint(Sketcher.Constraint("Vertical", 3, 3, 16, 3))
sketch6.addConstraint(Sketcher.Constraint("Diameter", 0, 2.8))
sketch6.addConstraint(Sketcher.Constraint("DistanceX", 2, 3, 4, 3, 15.0))
sketch6.addConstraint(Sketcher.Constraint("DistanceX", 4, 3, 5, 3, 2.0))
sketch6.addConstraint(Sketcher.Constraint("DistanceY", 8, 3, 6, 3, 20.0))
sketch6.addConstraint(Sketcher.Constraint("DistanceY", 12, 3, 10, 3, 20.0))
sketch6.addConstraint(Sketcher.Constraint("DistanceX", 15, 3, 14, 3, 2.0))
sketch6.addConstraint(Sketcher.Constraint("DistanceX", 17, 3, 15, 3, 15.0))
sketch6.addConstraint(Sketcher.Constraint("DistanceX", 18, 3, 16, 3, 15.0))
sketch6.addConstraint(Sketcher.Constraint("DistanceY", 6, 3, 3, 3, 36.8))
sketch6.addConstraint(Sketcher.Constraint("DistanceY", 9, 3, 5, 3, 56.8))
sketch6.addConstraint(Sketcher.Constraint("DistanceY", 10, 3, 8, 3, 46.4))
sketch6.addConstraint(Sketcher.Constraint("DistanceY", 11, 3, 7, 3, 66.4))
sketch6.addConstraint(Sketcher.Constraint("DistanceY", 13, 3, 9, 3, 66.4))
sketch6.addConstraint(Sketcher.Constraint("DistanceY", 14, 3, 12, 3, 36.8))
sketch6.addConstraint(Sketcher.Constraint("DistanceY", 15, 3, 11, 3, 56.8))
sketch6.addConstraint(Sketcher.Constraint("DistanceX", 3, 3, -1, 1, 7.99))
sketch6.addConstraint(Sketcher.Constraint("DistanceY", -1, 1, 3, 3, 170.99))
sketch6.addConstraint(Sketcher.Constraint("DistanceX", -1, 1, 6, 3, 0.99))
sketch6.addConstraint(Sketcher.Constraint("DistanceY", -1, 1, 7, 3, 122.21))
sketch6.addConstraint(Sketcher.Constraint("DistanceX", 2, 3, 3, 3, 8.197))
sketch6.addConstraint(Sketcher.Constraint("DistanceY", 5, 3, 3, 3, 11.803))
sketch6.addConstraint(Sketcher.Constraint("DistanceX", 1, 3, 6, 3, 23.803))
sketch6.addConstraint(Sketcher.Constraint("DistanceY", 7, 3, 4, 3, 48.603))
sketch6.addConstraint(Sketcher.Constraint("DistanceX", 0, 3, -1, 1, 28.3256))
sketch6.addConstraint(Sketcher.Constraint("DistanceY", 0, 3, -1, 1, 9.1766))
doc.recompute()
hole = body.newObject("PartDesign::Hole", "Hole")
hole.Profile = sketch6
hole.ThreadType = "None"
hole.Diameter = 2.8
hole.DepthType = "ThroughAll"

doc.recompute()
